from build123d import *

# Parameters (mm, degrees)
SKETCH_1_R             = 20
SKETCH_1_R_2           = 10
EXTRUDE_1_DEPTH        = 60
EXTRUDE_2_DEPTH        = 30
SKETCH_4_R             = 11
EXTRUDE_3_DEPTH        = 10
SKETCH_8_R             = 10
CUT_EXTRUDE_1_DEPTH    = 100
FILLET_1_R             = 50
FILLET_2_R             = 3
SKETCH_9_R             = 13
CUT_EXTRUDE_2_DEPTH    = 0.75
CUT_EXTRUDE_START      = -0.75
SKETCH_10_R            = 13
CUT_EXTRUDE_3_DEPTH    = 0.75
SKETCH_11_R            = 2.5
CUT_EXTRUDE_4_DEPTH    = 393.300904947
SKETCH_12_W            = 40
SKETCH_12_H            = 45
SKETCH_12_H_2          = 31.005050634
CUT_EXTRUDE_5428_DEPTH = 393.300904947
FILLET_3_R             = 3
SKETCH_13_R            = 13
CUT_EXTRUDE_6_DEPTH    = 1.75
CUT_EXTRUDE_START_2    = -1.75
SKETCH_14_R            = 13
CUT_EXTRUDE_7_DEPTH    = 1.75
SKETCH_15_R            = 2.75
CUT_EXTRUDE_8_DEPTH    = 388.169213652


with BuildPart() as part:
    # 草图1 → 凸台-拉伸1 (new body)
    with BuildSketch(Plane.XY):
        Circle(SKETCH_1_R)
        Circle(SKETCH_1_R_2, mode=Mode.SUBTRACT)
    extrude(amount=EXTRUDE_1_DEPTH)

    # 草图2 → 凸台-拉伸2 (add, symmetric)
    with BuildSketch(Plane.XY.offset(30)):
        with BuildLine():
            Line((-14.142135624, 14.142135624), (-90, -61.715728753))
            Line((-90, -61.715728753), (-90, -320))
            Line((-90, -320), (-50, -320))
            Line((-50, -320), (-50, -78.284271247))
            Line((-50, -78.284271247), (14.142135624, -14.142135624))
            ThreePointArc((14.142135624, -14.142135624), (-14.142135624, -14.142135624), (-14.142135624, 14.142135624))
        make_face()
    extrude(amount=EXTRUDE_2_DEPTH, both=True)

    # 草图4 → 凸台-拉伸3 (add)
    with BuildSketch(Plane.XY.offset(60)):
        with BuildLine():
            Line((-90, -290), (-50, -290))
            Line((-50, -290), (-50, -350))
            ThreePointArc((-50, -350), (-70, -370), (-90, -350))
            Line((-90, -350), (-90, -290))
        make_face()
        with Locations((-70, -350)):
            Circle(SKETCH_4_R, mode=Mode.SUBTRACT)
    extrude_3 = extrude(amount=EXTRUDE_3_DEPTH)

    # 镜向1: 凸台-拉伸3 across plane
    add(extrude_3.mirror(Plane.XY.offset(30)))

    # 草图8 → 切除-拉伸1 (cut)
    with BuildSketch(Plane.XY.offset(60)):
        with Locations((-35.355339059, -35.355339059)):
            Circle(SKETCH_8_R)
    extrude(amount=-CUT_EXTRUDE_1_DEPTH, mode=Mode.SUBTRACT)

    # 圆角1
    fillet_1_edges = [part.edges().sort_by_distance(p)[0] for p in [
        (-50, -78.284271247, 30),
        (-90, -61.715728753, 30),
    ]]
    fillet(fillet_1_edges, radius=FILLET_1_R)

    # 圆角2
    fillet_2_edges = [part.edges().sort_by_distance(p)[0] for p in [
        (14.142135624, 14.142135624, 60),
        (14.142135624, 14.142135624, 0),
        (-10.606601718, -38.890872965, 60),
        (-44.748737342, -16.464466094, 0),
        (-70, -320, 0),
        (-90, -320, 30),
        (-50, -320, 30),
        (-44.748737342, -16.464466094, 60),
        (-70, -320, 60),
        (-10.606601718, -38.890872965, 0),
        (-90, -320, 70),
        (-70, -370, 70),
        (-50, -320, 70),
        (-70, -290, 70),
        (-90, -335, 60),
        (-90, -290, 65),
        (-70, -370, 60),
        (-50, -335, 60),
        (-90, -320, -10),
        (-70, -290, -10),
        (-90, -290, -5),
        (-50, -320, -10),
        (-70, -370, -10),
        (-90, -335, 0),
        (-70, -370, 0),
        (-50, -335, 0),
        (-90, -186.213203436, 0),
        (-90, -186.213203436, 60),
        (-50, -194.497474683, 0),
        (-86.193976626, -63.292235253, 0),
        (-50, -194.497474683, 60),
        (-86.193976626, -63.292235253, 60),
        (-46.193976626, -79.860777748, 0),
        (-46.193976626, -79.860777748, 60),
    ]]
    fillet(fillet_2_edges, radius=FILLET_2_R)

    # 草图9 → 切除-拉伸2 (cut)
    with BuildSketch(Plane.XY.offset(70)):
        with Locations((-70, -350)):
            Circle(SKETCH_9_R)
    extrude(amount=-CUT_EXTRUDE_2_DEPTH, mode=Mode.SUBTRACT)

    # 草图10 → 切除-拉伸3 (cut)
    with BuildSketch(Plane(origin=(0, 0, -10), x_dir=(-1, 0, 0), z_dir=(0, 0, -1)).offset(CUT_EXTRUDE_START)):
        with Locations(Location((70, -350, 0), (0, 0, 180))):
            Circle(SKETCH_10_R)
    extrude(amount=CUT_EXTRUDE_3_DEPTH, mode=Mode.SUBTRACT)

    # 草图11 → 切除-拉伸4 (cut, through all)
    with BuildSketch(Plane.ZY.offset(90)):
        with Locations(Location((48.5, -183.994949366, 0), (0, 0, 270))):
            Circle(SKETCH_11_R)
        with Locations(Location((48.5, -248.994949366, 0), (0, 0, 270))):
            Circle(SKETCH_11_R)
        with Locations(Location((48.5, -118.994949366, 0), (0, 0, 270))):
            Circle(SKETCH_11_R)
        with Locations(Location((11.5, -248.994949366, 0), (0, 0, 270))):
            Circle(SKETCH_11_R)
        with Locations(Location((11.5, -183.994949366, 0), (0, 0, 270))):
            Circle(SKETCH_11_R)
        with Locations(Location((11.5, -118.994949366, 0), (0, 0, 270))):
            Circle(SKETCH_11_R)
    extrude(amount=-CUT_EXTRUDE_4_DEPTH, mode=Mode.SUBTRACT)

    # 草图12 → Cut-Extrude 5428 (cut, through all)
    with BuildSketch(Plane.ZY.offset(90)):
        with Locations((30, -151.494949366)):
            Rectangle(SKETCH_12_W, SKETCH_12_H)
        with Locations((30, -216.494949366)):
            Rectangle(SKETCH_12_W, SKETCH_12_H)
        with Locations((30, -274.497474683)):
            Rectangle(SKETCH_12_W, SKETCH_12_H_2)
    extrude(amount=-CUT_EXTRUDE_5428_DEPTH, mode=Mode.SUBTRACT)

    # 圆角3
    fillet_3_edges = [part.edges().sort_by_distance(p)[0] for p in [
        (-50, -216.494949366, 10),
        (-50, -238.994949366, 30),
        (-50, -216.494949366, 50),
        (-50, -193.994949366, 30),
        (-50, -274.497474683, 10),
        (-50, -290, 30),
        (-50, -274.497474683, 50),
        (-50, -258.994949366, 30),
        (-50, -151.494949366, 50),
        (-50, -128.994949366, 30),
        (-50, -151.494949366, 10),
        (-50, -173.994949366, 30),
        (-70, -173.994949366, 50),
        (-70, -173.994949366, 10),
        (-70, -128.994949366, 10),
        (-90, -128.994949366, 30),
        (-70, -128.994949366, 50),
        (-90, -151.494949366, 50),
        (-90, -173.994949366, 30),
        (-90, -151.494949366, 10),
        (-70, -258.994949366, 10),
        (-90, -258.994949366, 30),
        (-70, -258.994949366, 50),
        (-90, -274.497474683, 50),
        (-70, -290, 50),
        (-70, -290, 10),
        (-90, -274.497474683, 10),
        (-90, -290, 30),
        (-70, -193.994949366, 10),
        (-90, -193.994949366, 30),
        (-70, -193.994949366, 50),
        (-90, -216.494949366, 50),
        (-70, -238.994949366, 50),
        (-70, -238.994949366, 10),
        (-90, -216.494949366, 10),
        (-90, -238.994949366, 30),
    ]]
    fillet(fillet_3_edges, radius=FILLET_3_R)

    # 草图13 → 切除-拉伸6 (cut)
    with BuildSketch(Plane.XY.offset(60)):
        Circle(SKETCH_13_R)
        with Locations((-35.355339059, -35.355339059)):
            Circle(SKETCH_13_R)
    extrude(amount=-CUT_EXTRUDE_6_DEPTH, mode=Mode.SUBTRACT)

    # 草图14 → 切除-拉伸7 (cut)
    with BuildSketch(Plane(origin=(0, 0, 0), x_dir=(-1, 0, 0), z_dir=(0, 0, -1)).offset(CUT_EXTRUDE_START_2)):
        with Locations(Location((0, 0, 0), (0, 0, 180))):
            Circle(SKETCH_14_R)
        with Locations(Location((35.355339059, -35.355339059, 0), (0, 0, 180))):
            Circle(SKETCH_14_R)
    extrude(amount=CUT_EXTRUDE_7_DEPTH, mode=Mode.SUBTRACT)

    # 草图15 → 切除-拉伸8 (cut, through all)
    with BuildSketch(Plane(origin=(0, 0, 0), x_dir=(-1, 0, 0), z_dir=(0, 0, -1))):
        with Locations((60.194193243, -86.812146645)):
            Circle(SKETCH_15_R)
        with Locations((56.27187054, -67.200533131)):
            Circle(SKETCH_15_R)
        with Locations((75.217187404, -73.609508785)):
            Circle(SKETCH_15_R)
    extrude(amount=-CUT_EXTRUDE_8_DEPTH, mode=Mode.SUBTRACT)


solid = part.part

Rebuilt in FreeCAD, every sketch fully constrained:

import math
import FreeCAD as App
import Part
import Sketcher

V = App.Vector
Q = App.Units.Quantity


def edges_at(feature, points):
    """Names of the edges that pass closest to the given points."""
    edges = feature.Shape.Edges
    near = lambda p: min(range(len(edges)), key=lambda i: edges[i].distToShape(Part.Vertex(*p))[0])
    return sorted({f"Edge{near(p) + 1}" for p in points})

doc = App.newDocument("Part")
params = doc.addObject("Spreadsheet::Sheet", "Params")
for row, (alias, value) in enumerate([
    ("sketch1_diameter", "40 mm"),
    ("sketch1_diameter2", "20 mm"),
    ("pad1_length", "60 mm"),
    ("sketch2_radius", "20 mm"),
    ("sketch2_width", "40 mm"),
    ("pad2_length", "60 mm"),
    ("sketch3_diameter", "22 mm"),
    ("sketch3_radius", "20 mm"),
    ("sketch3_height", "60 mm"),
    ("pad3_length", "10 mm"),
    ("sketch4_diameter", "20 mm"),
    ("pocket1_length", "100 mm"),
    ("fillet_radius", "50 mm"),
    ("fillet2_radius", "3 mm"),
    ("sketch5_diameter", "26 mm"),
    ("pocket2_length", "0.75 mm"),
    ("sketch6_diameter", "26 mm"),
    ("pocket3_length", "0.75 mm"),
    ("sketch7_diameter", "5 mm"),
    ("sketch8_width", "45 mm"),
    ("sketch8_height", "40 mm"),
    ("fillet3_radius", "3 mm"),
    ("sketch9_diameter", "26 mm"),
    ("pocket6_length", "1.75 mm"),
    ("sketch10_diameter", "26 mm"),
    ("pocket7_length", "1.75 mm"),
    ("sketch11_diameter", "5.5 mm"),
], start=1):
    params.set(f"A{row}", alias)
    params.set(f"B{row}", "=" + value)
    params.setAlias(f"B{row}", alias)

body = doc.addObject("PartDesign::Body", "Body")

sketch1 = body.newObject("Sketcher::SketchObject", "Sketch")
sketch1.AttachmentSupport = (doc.getObject("XY_Plane"), [""])
sketch1.MapMode = "FlatFace"
sketch1.addGeometry([
    Part.Circle(V(0, 0, 0), V(0, 0, 1), 20),
    Part.Circle(V(0, 0, 0), V(0, 0, 1), 10),
], False)
sketch1.addConstraint([
    Sketcher.Constraint("Coincident", 0, 3, -1, 1),
    Sketcher.Constraint("Coincident", 1, 3, -1, 1),
    Sketcher.Constraint("Diameter", 0, Q("40 mm")),
    Sketcher.Constraint("Diameter", 1, Q("20 mm")),
])
sketch1.setExpression("Constraints[2]", "Params.sketch1_diameter")
sketch1.setExpression("Constraints[3]", "Params.sketch1_diameter2")
pad1 = body.newObject("PartDesign::Pad", "Pad")
pad1.Profile = sketch1
pad1.setExpression("Length", "Params.pad1_length")

sketch2 = body.newObject("Sketcher::SketchObject", "Sketch001")
sketch2.AttachmentSupport = (doc.getObject("XY_Plane"), [""])
sketch2.MapMode = "FlatFace"
sketch2.AttachmentOffset = App.Placement(V(0, 0, 30), App.Rotation())
sketch2.addGeometry([
    Part.LineSegment(V(-14, 14, 0), V(-90, -62, 0)),
    Part.LineSegment(V(-90, -62, 0), V(-90, -320, 0)),
    Part.LineSegment(V(-90, -320, 0), V(-50, -320, 0)),
    Part.LineSegment(V(-50, -320, 0), V(-50, -78, 0)),
    Part.LineSegment(V(-50, -78, 0), V(14, -14, 0)),
    Part.ArcOfCircle(Part.Circle(V(0, 0, 0), V(0, 0, 1), 20), math.radians(135), math.radians(315)),
], False)
sketch2.addConstraint([
    Sketcher.Constraint("Coincident", 0, 2, 1, 1),
    Sketcher.Constraint("Coincident", 1, 2, 2, 1),
    Sketcher.Constraint("Coincident", 2, 2, 3, 1),
    Sketcher.Constraint("Coincident", 3, 2, 4, 1),
    Sketcher.Constraint("Tangent", 4, 2, 5, 2),
    Sketcher.Constraint("Tangent", 5, 1, 0, 1),
    Sketcher.Constraint("Vertical", 1),
    Sketcher.Constraint("Horizontal", 2),
    Sketcher.Constraint("Vertical", 3),
    Sketcher.Constraint("Coincident", 5, 3, -1, 1),
    Sketcher.Constraint("Parallel", 0, 4),
    Sketcher.Constraint("Radius", 5, Q("20 mm")),
    Sketcher.Constraint("DistanceX", 2, 1, 2, 2, Q("40 mm")),
    Sketcher.Constraint("Angle", 0, Q("-135 deg")),
    Sketcher.Constraint("DistanceX", 0, 2, -1, 1, Q("90 mm")),
    Sketcher.Constraint("DistanceY", 1, 2, -1, 1, Q("320 mm")),
])
sketch2.setExpression("Constraints[11]", "Params.sketch2_radius")
sketch2.setExpression("Constraints[12]", "Params.sketch2_width")
pad2 = body.newObject("PartDesign::Pad", "Pad001")
pad2.Profile = sketch2
pad2.setExpression("Length", "Params.pad2_length")
pad2.Midplane = True

sketch3 = body.newObject("Sketcher::SketchObject", "Sketch002")
sketch3.AttachmentSupport = (doc.getObject("XY_Plane"), [""])
sketch3.MapMode = "FlatFace"
sketch3.AttachmentOffset = App.Placement(V(0, 0, 60), App.Rotation())
sketch3.addGeometry([
    Part.LineSegment(V(-50, -290, 0), V(-90, -290, 0)),
    Part.LineSegment(V(-90, -290, 0), V(-90, -350, 0)),
    Part.ArcOfCircle(Part.Circle(V(-70, -350, 0), V(0, 0, 1), 20), math.radians(180), math.radians(360)),
    Part.LineSegment(V(-50, -350, 0), V(-50, -290, 0)),
    Part.Circle(V(-70, -350, 0), V(0, 0, 1), 11),
], False)
sketch3.addConstraint([
    Sketcher.Constraint("Coincident", 0, 2, 1, 1),
    Sketcher.Constraint("Tangent", 1, 2, 2, 1),
    Sketcher.Constraint("Tangent", 2, 2, 3, 1),
    Sketcher.Constraint("Coincident", 3, 2, 0, 1),
    Sketcher.Constraint("Horizontal", 0),
    Sketcher.Constraint("Vertical", 1),
    Sketcher.Constraint("Vertical", 3),
    Sketcher.Constraint("Coincident", 4, 3, 2, 3),
    Sketcher.Constraint("Diameter", 4, Q("22 mm")),
    Sketcher.Constraint("Radius", 2, Q("20 mm")),
    Sketcher.Constraint("DistanceY", 1, 2, 1, 1, Q("60 mm")),
    Sketcher.Constraint("DistanceX", 2, 3, -1, 1, Q("70 mm")),
    Sketcher.Constraint("DistanceY", 2, 3, -1, 1, Q("350 mm")),
])
sketch3.setExpression("Constraints[8]", "Params.sketch3_diameter")
sketch3.setExpression("Constraints[9]", "Params.sketch3_radius")
sketch3.setExpression("Constraints[10]", "Params.sketch3_height")
pad3 = body.newObject("PartDesign::Pad", "Pad002")
pad3.Profile = sketch3
pad3.setExpression("Length", "Params.pad3_length")
doc.recompute()

datumplane = body.newObject("PartDesign::Plane", "DatumPlane")
datumplane.AttachmentSupport = (doc.getObject("XY_Plane"), [""])
datumplane.MapMode = "FlatFace"
datumplane.AttachmentOffset = App.Placement(V(0, 0, 30), App.Rotation())
mirrored = body.newObject("PartDesign::Mirrored", "Mirrored")
mirrored.Originals = [pad3]
mirrored.MirrorPlane = (datumplane, [""])
body.Tip = mirrored

sketch4 = body.newObject("Sketcher::SketchObject", "Sketch003")
sketch4.AttachmentSupport = (doc.getObject("XY_Plane"), [""])
sketch4.MapMode = "FlatFace"
sketch4.AttachmentOffset = App.Placement(V(0, 0, 60), App.Rotation())
sketch4.addGeometry(Part.Circle(V(-35, -35, 0), V(0, 0, 1), 10), False)
sketch4.addConstraint([
    Sketcher.Constraint("Diameter", 0, Q("20 mm")),
    Sketcher.Constraint("DistanceX", 0, 3, -1, 1, Q("35.355339 mm")),
    Sketcher.Constraint("DistanceY", 0, 3, -1, 1, Q("35.355339 mm")),
])
sketch4.setExpression("Constraints[0]", "Params.sketch4_diameter")
pocket1 = body.newObject("PartDesign::Pocket", "Pocket")
pocket1.Profile = sketch4
pocket1.setExpression("Length", "Params.pocket1_length")
doc.recompute()

fillet = body.newObject("PartDesign::Fillet", "Fillet")
fillet.Base = (pocket1, edges_at(pocket1, [(-50, -78.284, 30), (-90, -61.716, 30)]))
fillet.setExpression("Radius", "Params.fillet_radius")
doc.recompute()

fillet2 = body.newObject("PartDesign::Fillet", "Fillet001")
fillet2.Base = (fillet, edges_at(fillet, [
    (14.142, 14.142, 60),
    (14.142, 14.142, 0),
    (-10.607, -38.891, 60),
    (-44.749, -16.464, 0),
    (-70, -320, 0),
    (-90, -320, 30),
    (-50, -320, 30),
    (-44.749, -16.464, 60),
    (-70, -320, 60),
    (-10.607, -38.891, 0),
    (-90, -320, 70),
    (-70, -370, 70),
    (-50, -320, 70),
    (-70, -290, 70),
    (-90, -335, 60),
    (-90, -290, 65),
    (-70, -370, 60),
    (-50, -335, 60),
    (-90, -320, -10),
    (-70, -290, -10),
    (-90, -290, -5),
    (-50, -320, -10),
    (-70, -370, -10),
    (-90, -335, 0),
    (-70, -370, 0),
    (-50, -335, 0),
    (-90, -186.213, 0),
    (-90, -186.213, 60),
    (-50, -194.497, 0),
    (-86.194, -63.292, 0),
    (-50, -194.497, 60),
    (-86.194, -63.292, 60),
    (-46.194, -79.861, 0),
    (-46.194, -79.861, 60),
]))
fillet2.setExpression("Radius", "Params.fillet2_radius")

sketch5 = body.newObject("Sketcher::SketchObject", "Sketch004")
sketch5.AttachmentSupport = (doc.getObject("XY_Plane"), [""])
sketch5.MapMode = "FlatFace"
sketch5.AttachmentOffset = App.Placement(V(0, 0, 70), App.Rotation())
sketch5.addGeometry(Part.Circle(V(-70, -350, 0), V(0, 0, 1), 13), False)
sketch5.addConstraint([
    Sketcher.Constraint("Diameter", 0, Q("26 mm")),
    Sketcher.Constraint("DistanceX", 0, 3, -1, 1, Q("70 mm")),
    Sketcher.Constraint("DistanceY", 0, 3, -1, 1, Q("350 mm")),
])
sketch5.setExpression("Constraints[0]", "Params.sketch5_diameter")
pocket2 = body.newObject("PartDesign::Pocket", "Pocket001")
pocket2.Profile = sketch5
pocket2.setExpression("Length", "Params.pocket2_length")

sketch6 = body.newObject("Sketcher::SketchObject", "Sketch005")
sketch6.AttachmentSupport = (doc.getObject("XY_Plane"), [""])
sketch6.MapMode = "FlatFace"
sketch6.AttachmentOffset = App.Placement(V(0, 0, -9.25), App.Rotation())
sketch6.addGeometry(Part.Circle(V(-70, -350, 0), V(0, 0, 1), 13), False)
sketch6.addConstraint([
    Sketcher.Constraint("Diameter", 0, Q("26 mm")),
    Sketcher.Constraint("DistanceX", 0, 3, -1, 1, Q("70 mm")),
    Sketcher.Constraint("DistanceY", 0, 3, -1, 1, Q("350 mm")),
])
sketch6.setExpression("Constraints[0]", "Params.sketch6_diameter")
pocket3 = body.newObject("PartDesign::Pocket", "Pocket002")
pocket3.Profile = sketch6
pocket3.setExpression("Length", "Params.pocket3_length")

sketch7 = body.newObject("Sketcher::SketchObject", "Sketch006")
sketch7.AttachmentSupport = (doc.getObject("YZ_Plane"), [""])
sketch7.MapMode = "FlatFace"
sketch7.AttachmentOffset = App.Placement(V(0, 0, -90), App.Rotation())
sketch7.addGeometry([
    Part.Circle(V(-184, 48.5, 0), V(0, 0, 1), 2.5),
    Part.Circle(V(-249, 48.5, 0), V(0, 0, 1), 2.5),
    Part.Circle(V(-119, 48.5, 0), V(0, 0, 1), 2.5),
    Part.Circle(V(-249, 11.5, 0), V(0, 0, 1), 2.5),
    Part.Circle(V(-184, 11.5, 0), V(0, 0, 1), 2.5),
    Part.Circle(V(-119, 11.5, 0), V(0, 0, 1), 2.5),
], False)
sketch7.addConstraint([
    Sketcher.Constraint("Equal", 0, 1),
    Sketcher.Constraint("Equal", 1, 2),
    Sketcher.Constraint("Equal", 2, 3),
    Sketcher.Constraint("Equal", 3, 4),
    Sketcher.Constraint("Equal", 4, 5),
    Sketcher.Constraint("Horizontal", 0, 3, 1, 3),
    Sketcher.Constraint("Horizontal", 1, 3, 2, 3),
    Sketcher.Constraint("Horizontal", 3, 3, 4, 3),
    Sketcher.Constraint("Horizontal", 4, 3, 5, 3),
    Sketcher.Constraint("Vertical", 1, 3, 3, 3),
    Sketcher.Constraint("Vertical", 0, 3, 4, 3),
    Sketcher.Constraint("Vertical", 2, 3, 5, 3),
    Sketcher.Constraint("Diameter", 0, Q("5 mm")),
    Sketcher.Constraint("DistanceX", 1, 3, 0, 3, Q("65 mm")),
    Sketcher.Constraint("DistanceX", 0, 3, 2, 3, Q("65 mm")),
    Sketcher.Constraint("DistanceY", 3, 3, 1, 3, Q("37 mm")),
    Sketcher.Constraint("DistanceY", -1, 1, 0, 3, Q("48.5 mm")),
    Sketcher.Constraint("DistanceX", 0, 3, -1, 1, Q("183.994949 mm")),
])
sketch7.setExpression("Constraints[12]", "Params.sketch7_diameter")
pocket4 = body.newObject("PartDesign::Pocket", "Pocket003")
pocket4.Profile = sketch7
pocket4.Type = "ThroughAll"
pocket4.Reversed = True

sketch8 = body.newObject("Sketcher::SketchObject", "Sketch007")
sketch8.AttachmentSupport = (doc.getObject("YZ_Plane"), [""])
sketch8.MapMode = "FlatFace"
sketch8.AttachmentOffset = App.Placement(V(0, 0, -90), App.Rotation())
sketch8.addGeometry([
    Part.LineSegment(V(-129, 10, 0), V(-174, 10, 0)),
    Part.LineSegment(V(-174, 10, 0), V(-174, 50, 0)),
    Part.LineSegment(V(-174, 50, 0), V(-129, 50, 0)),
    Part.LineSegment(V(-129, 50, 0), V(-129, 10, 0)),
    Part.LineSegment(V(-194, 10, 0), V(-239, 10, 0)),
    Part.LineSegment(V(-239, 10, 0), V(-239, 50, 0)),
    Part.LineSegment(V(-239, 50, 0), V(-194, 50, 0)),
    Part.LineSegment(V(-194, 50, 0), V(-194, 10, 0)),
    Part.LineSegment(V(-259, 10, 0), V(-290, 10, 0)),
    Part.LineSegment(V(-290, 10, 0), V(-290, 50, 0)),
    Part.LineSegment(V(-290, 50, 0), V(-259, 50, 0)),
    Part.LineSegment(V(-259, 50, 0), V(-259, 10, 0)),
], False)
sketch8.addConstraint([
    Sketcher.Constraint("Coincident", 0, 2, 1, 1),
    Sketcher.Constraint("Coincident", 1, 2, 2, 1),
    Sketcher.Constraint("Coincident", 2, 2, 3, 1),
    Sketcher.Constraint("Coincident", 3, 2, 0, 1),
    Sketcher.Constraint("Coincident", 4, 2, 5, 1),
    Sketcher.Constraint("Coincident", 5, 2, 6, 1),
    Sketcher.Constraint("Coincident", 6, 2, 7, 1),
    Sketcher.Constraint("Coincident", 7, 2, 4, 1),
    Sketcher.Constraint("Coincident", 8, 2, 9, 1),
    Sketcher.Constraint("Coincident", 9, 2, 10, 1),
    Sketcher.Constraint("Coincident", 10, 2, 11, 1),
    Sketcher.Constraint("Coincident", 11, 2, 8, 1),
    Sketcher.Constraint("Horizontal", 0),
    Sketcher.Constraint("Vertical", 1),
    Sketcher.Constraint("Horizontal", 2),
    Sketcher.Constraint("Vertical", 3),
    Sketcher.Constraint("Horizontal", 4),
    Sketcher.Constraint("Vertical", 5),
    Sketcher.Constraint("Horizontal", 6),
    Sketcher.Constraint("Vertical", 7),
    Sketcher.Constraint("Horizontal", 8),
    Sketcher.Constraint("Vertical", 9),
    Sketcher.Constraint("Horizontal", 10),
    Sketcher.Constraint("Vertical", 11),
    Sketcher.Constraint("Horizontal", 3, 2, 4, 2),
    Sketcher.Constraint("Horizontal", 2, 2, 5, 2),
    Sketcher.Constraint("Horizontal", 7, 2, 8, 2),
    Sketcher.Constraint("Horizontal", 6, 2, 9, 2),
    Sketcher.Constraint("Equal", 2, 4),
    Sketcher.Constraint("DistanceX", 0, 2, 0, 1, Q("45 mm")),
    Sketcher.Constraint("DistanceY", 1, 1, 1, 2, Q("40 mm")),
    Sketcher.Constraint("DistanceY", -1, 1, 0, 2, Q("10 mm")),
    Sketcher.Constraint("DistanceX", 8, 2, -1, 1, Q("290 mm")),
    Sketcher.Constraint("DistanceX", 4, 2, 0, 2, Q("65 mm")),
    Sketcher.Constraint("DistanceX", 10, 2, 5, 2, Q("20 mm")),
    Sketcher.Constraint("DistanceX", 8, 2, 8, 1, Q("31.005051 mm")),
])
sketch8.setExpression("Constraints[29]", "Params.sketch8_width")
sketch8.setExpression("Constraints[30]", "Params.sketch8_height")
pocket5 = body.newObject("PartDesign::Pocket", "Pocket004")
pocket5.Profile = sketch8
pocket5.Type = "ThroughAll"
pocket5.Reversed = True
doc.recompute()

fillet3 = body.newObject("PartDesign::Fillet", "Fillet002")
fillet3.Base = (pocket5, edges_at(pocket5, [
    (-50, -216.495, 10),
    (-50, -238.995, 30),
    (-50, -216.495, 50),
    (-50, -193.995, 30),
    (-50, -274.497, 10),
    (-50, -290, 30),
    (-50, -274.497, 50),
    (-50, -258.995, 30),
    (-50, -151.495, 50),
    (-50, -128.995, 30),
    (-50, -151.495, 10),
    (-50, -173.995, 30),
    (-70, -173.995, 50),
    (-70, -173.995, 10),
    (-70, -128.995, 10),
    (-90, -128.995, 30),
    (-70, -128.995, 50),
    (-90, -151.495, 50),
    (-90, -173.995, 30),
    (-90, -151.495, 10),
    (-70, -258.995, 10),
    (-90, -258.995, 30),
    (-70, -258.995, 50),
    (-90, -274.497, 50),
    (-70, -290, 50),
    (-70, -290, 10),
    (-90, -274.497, 10),
    (-90, -290, 30),
    (-70, -193.995, 10),
    (-90, -193.995, 30),
    (-70, -193.995, 50),
    (-90, -216.495, 50),
    (-70, -238.995, 50),
    (-70, -238.995, 10),
    (-90, -216.495, 10),
    (-90, -238.995, 30),
]))
fillet3.setExpression("Radius", "Params.fillet3_radius")

sketch9 = body.newObject("Sketcher::SketchObject", "Sketch008")
sketch9.AttachmentSupport = (doc.getObject("XY_Plane"), [""])
sketch9.MapMode = "FlatFace"
sketch9.AttachmentOffset = App.Placement(V(0, 0, 60), App.Rotation())
sketch9.addGeometry([
    Part.Circle(V(0, 0, 0), V(0, 0, 1), 13),
    Part.Circle(V(-35, -35, 0), V(0, 0, 1), 13),
], False)
sketch9.addConstraint([
    Sketcher.Constraint("Coincident", 0, 3, -1, 1),
    Sketcher.Constraint("Equal", 0, 1),
    Sketcher.Constraint("Diameter", 0, Q("26 mm")),
    Sketcher.Constraint("DistanceX", 1, 3, -1, 1, Q("35.355339 mm")),
    Sketcher.Constraint("DistanceY", 1, 3, -1, 1, Q("35.355339 mm")),
])
sketch9.setExpression("Constraints[2]", "Params.sketch9_diameter")
pocket6 = body.newObject("PartDesign::Pocket", "Pocket005")
pocket6.Profile = sketch9
pocket6.setExpression("Length", "Params.pocket6_length")

sketch10 = body.newObject("Sketcher::SketchObject", "Sketch009")
sketch10.AttachmentSupport = (doc.getObject("XY_Plane"), [""])
sketch10.MapMode = "FlatFace"
sketch10.AttachmentOffset = App.Placement(V(0, 0, 1.75), App.Rotation())
sketch10.addGeometry([
    Part.Circle(V(0, 0, 0), V(0, 0, 1), 13),
    Part.Circle(V(-35, -35, 0), V(0, 0, 1), 13),
], False)
sketch10.addConstraint([
    Sketcher.Constraint("Coincident", 0, 3, -1, 1),
    Sketcher.Constraint("Equal", 0, 1),
    Sketcher.Constraint("Diameter", 0, Q("26 mm")),
    Sketcher.Constraint("DistanceX", 1, 3, -1, 1, Q("35.355339 mm")),
    Sketcher.Constraint("DistanceY", 1, 3, -1, 1, Q("35.355339 mm")),
])
sketch10.setExpression("Constraints[2]", "Params.sketch10_diameter")
pocket7 = body.newObject("PartDesign::Pocket", "Pocket006")
pocket7.Profile = sketch10
pocket7.setExpression("Length", "Params.pocket7_length")

sketch11 = body.newObject("Sketcher::SketchObject", "Sketch010")
sketch11.AttachmentSupport = (doc.getObject("XY_Plane"), [""])
sketch11.MapMode = "FlatFace"
sketch11.addGeometry([
    Part.Circle(V(-60.2, -86.8, 0), V(0, 0, 1), 2.8),
    Part.Circle(V(-56.3, -67.2, 0), V(0, 0, 1), 2.8),
    Part.Circle(V(-75.2, -73.6, 0), V(0, 0, 1), 2.8),
], False)
sketch11.addConstraint([
    Sketcher.Constraint("Equal", 0, 1),
    Sketcher.Constraint("Equal", 1, 2),
    Sketcher.Constraint("Diameter", 0, Q("5.5 mm")),
    Sketcher.Constraint("DistanceX", 1, 3, -1, 1, Q("56.271871 mm")),
    Sketcher.Constraint("DistanceY", 2, 3, -1, 1, Q("73.609509 mm")),
    Sketcher.Constraint("DistanceX", 0, 3, -1, 1, Q("60.194193 mm")),
    Sketcher.Constraint("DistanceY", 0, 3, -1, 1, Q("86.812147 mm")),
    Sketcher.Constraint("DistanceY", 1, 3, -1, 1, Q("67.200533 mm")),
    Sketcher.Constraint("DistanceX", 2, 3, -1, 1, Q("75.217187 mm")),
])
sketch11.setExpression("Constraints[2]", "Params.sketch11_diameter")
pocket8 = body.newObject("PartDesign::Pocket", "Pocket007")
pocket8.Profile = sketch11
pocket8.Type = "ThroughAll"
pocket8.Reversed = True

doc.recompute()
